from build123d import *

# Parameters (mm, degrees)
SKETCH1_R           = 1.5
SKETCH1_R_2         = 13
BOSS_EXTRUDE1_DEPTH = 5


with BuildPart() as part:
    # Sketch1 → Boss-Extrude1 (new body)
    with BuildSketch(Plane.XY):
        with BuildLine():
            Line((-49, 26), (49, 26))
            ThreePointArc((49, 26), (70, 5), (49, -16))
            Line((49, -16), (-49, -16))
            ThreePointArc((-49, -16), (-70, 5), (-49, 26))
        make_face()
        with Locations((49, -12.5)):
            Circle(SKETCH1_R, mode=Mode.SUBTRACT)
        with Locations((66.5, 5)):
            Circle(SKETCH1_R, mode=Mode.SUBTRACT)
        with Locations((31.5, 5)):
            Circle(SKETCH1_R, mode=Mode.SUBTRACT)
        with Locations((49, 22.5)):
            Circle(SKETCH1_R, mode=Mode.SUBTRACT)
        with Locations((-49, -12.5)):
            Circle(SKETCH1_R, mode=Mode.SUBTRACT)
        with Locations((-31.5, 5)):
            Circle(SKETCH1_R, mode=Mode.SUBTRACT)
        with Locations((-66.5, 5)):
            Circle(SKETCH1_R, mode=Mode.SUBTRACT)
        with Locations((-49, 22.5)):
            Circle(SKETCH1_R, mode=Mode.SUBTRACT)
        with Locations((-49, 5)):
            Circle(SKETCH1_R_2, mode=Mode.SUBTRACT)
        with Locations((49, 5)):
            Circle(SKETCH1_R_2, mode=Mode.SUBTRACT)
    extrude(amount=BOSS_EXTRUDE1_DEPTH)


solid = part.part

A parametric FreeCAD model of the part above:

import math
import FreeCAD as App
import Part
import Sketcher

V = App.Vector
Q = App.Units.Quantity

doc = App.newDocument("Part")
body = doc.addObject("PartDesign::Body", "Body")

# Sketch on XY plane
sketch1 = doc.addObject("Sketcher::SketchObject", "Sketch")
body.addObject(sketch1)
sketch1.AttachmentSupport = (doc.XY_Plane, [""])
sketch1.MapMode = "FlatFace"
sketch1.addGeometry(Part.LineSegment(V(49, 26, 0), V(-49, 26, 0)), False)
sketch1.addGeometry(Part.ArcOfCircle(Part.Circle(V(-49, 5, 0), V(0, 0, 1), 21), math.radians(90), math.radians(270)), False)
sketch1.addGeometry(Part.LineSegment(V(-49, -16, 0), V(49, -16, 0)), False)
sketch1.addGeometry(Part.ArcOfCircle(Part.Circle(V(49, 5, 0), V(0, 0, 1), 21), math.radians(-90), math.radians(90)), False)
sketch1.addGeometry(Part.Circle(V(49, -12.5, 0), V(0, 0, 1), 1.5), False)
sketch1.addGeometry(Part.Circle(V(-49, -12.5, 0), V(0, 0, 1), 1.5), False)
sketch1.addGeometry(Part.Circle(V(66.5, 5, 0), V(0, 0, 1), 1.5), False)
sketch1.addGeometry(Part.Circle(V(49, 5, 0), V(0, 0, 1), 13), False)
sketch1.addGeometry(Part.Circle(V(31.5, 5, 0), V(0, 0, 1), 1.5), False)
sketch1.addGeometry(Part.Circle(V(49, 22.5, 0), V(0, 0, 1), 1.5), False)
sketch1.addGeometry(Part.Circle(V(-31.5, 5, 0), V(0, 0, 1), 1.5), False)
sketch1.addGeometry(Part.Circle(V(-49, 5, 0), V(0, 0, 1), 13), False)
sketch1.addGeometry(Part.Circle(V(-66.5, 5, 0), V(0, 0, 1), 1.5), False)
sketch1.addGeometry(Part.Circle(V(-49, 22.5, 0), V(0, 0, 1), 1.5), False)
sketch1.addConstraint(Sketcher.Constraint("Tangent", 0, 2, 1, 1))
sketch1.addConstraint(Sketcher.Constraint("Tangent", 1, 2, 2, 1))
sketch1.addConstraint(Sketcher.Constraint("Tangent", 2, 2, 3, 1))
sketch1.addConstraint(Sketcher.Constraint("Tangent", 3, 2, 0, 1))
sketch1.addConstraint(Sketcher.Constraint("Horizontal", 0))
sketch1.addConstraint(Sketcher.Constraint("Horizontal", 2))
sketch1.addConstraint(Sketcher.Constraint("Coincident", 7, 3, 3, 3))
sketch1.addConstraint(Sketcher.Constraint("Coincident", 11, 3, 1, 3))
sketch1.addConstraint(Sketcher.Constraint("Equal", 4, 5))
sketch1.addConstraint(Sketcher.Constraint("Equal", 5, 6))
sketch1.addConstraint(Sketcher.Constraint("Equal", 6, 8))
sketch1.addConstraint(Sketcher.Constraint("Equal", 8, 9))
sketch1.addConstraint(Sketcher.Constraint("Equal", 9, 10))
sketch1.addConstraint(Sketcher.Constraint("Equal", 7, 11))
sketch1.addConstraint(Sketcher.Constraint("Equal", 10, 12))
sketch1.addConstraint(Sketcher.Constraint("Equal", 12, 13))
sketch1.addConstraint(Sketcher.Constraint("Symmetric", 4, 3, 5, 3, -2))
sketch1.addConstraint(Sketcher.Constraint("Symmetric", 8, 3, 10, 3, -2))
sketch1.addConstraint(Sketcher.Constraint("Symmetric", 6, 3, 12, 3, -2))
sketch1.addConstraint(Sketcher.Constraint("Symmetric", 9, 3, 13, 3, -2))
sketch1.addConstraint(Sketcher.Constraint("Horizontal", 3, 3, 6, 3))
sketch1.addConstraint(Sketcher.Constraint("Horizontal", 7, 3, 8, 3))
sketch1.addConstraint(Sketcher.Constraint("Vertical", 3, 3, 4, 3))
sketch1.addConstraint(Sketcher.Constraint("Vertical", 1, 3, 5, 3))
sketch1.addConstraint(Sketcher.Constraint("Vertical", 7, 3, 9, 3))
sketch1.addConstraint(Sketcher.Constraint("Diameter", 4, Q("3 mm")))
sketch1.addConstraint(Sketcher.Constraint("Diameter", 7, Q("26 mm")))
sketch1.addConstraint(Sketcher.Constraint("Radius", 1, Q("21 mm")))
sketch1.addConstraint(Sketcher.Constraint("DistanceX", 0, 2, 0, 1, Q("98 mm")))
sketch1.addConstraint(Sketcher.Constraint("DistanceY", -1, 1, 1, 3, Q("5 mm")))
sketch1.addConstraint(Sketcher.Constraint("DistanceX", 8, 3, 6, 3, Q("35 mm")))
sketch1.addConstraint(Sketcher.Constraint("DistanceY", 4, 3, 9, 3, Q("35 mm")))
sketch1.addConstraint(Sketcher.Constraint("DistanceX", 10, 3, 8, 3, Q("63 mm")))
sketch1.addConstraint(Sketcher.Constraint("DistanceY", 4, 3, -1, 1, Q("12.5 mm")))
pad1 = doc.addObject("PartDesign::Pad", "Pad")
body.addObject(pad1)
pad1.Profile = sketch1
pad1.Length = 5

doc.recompute()
